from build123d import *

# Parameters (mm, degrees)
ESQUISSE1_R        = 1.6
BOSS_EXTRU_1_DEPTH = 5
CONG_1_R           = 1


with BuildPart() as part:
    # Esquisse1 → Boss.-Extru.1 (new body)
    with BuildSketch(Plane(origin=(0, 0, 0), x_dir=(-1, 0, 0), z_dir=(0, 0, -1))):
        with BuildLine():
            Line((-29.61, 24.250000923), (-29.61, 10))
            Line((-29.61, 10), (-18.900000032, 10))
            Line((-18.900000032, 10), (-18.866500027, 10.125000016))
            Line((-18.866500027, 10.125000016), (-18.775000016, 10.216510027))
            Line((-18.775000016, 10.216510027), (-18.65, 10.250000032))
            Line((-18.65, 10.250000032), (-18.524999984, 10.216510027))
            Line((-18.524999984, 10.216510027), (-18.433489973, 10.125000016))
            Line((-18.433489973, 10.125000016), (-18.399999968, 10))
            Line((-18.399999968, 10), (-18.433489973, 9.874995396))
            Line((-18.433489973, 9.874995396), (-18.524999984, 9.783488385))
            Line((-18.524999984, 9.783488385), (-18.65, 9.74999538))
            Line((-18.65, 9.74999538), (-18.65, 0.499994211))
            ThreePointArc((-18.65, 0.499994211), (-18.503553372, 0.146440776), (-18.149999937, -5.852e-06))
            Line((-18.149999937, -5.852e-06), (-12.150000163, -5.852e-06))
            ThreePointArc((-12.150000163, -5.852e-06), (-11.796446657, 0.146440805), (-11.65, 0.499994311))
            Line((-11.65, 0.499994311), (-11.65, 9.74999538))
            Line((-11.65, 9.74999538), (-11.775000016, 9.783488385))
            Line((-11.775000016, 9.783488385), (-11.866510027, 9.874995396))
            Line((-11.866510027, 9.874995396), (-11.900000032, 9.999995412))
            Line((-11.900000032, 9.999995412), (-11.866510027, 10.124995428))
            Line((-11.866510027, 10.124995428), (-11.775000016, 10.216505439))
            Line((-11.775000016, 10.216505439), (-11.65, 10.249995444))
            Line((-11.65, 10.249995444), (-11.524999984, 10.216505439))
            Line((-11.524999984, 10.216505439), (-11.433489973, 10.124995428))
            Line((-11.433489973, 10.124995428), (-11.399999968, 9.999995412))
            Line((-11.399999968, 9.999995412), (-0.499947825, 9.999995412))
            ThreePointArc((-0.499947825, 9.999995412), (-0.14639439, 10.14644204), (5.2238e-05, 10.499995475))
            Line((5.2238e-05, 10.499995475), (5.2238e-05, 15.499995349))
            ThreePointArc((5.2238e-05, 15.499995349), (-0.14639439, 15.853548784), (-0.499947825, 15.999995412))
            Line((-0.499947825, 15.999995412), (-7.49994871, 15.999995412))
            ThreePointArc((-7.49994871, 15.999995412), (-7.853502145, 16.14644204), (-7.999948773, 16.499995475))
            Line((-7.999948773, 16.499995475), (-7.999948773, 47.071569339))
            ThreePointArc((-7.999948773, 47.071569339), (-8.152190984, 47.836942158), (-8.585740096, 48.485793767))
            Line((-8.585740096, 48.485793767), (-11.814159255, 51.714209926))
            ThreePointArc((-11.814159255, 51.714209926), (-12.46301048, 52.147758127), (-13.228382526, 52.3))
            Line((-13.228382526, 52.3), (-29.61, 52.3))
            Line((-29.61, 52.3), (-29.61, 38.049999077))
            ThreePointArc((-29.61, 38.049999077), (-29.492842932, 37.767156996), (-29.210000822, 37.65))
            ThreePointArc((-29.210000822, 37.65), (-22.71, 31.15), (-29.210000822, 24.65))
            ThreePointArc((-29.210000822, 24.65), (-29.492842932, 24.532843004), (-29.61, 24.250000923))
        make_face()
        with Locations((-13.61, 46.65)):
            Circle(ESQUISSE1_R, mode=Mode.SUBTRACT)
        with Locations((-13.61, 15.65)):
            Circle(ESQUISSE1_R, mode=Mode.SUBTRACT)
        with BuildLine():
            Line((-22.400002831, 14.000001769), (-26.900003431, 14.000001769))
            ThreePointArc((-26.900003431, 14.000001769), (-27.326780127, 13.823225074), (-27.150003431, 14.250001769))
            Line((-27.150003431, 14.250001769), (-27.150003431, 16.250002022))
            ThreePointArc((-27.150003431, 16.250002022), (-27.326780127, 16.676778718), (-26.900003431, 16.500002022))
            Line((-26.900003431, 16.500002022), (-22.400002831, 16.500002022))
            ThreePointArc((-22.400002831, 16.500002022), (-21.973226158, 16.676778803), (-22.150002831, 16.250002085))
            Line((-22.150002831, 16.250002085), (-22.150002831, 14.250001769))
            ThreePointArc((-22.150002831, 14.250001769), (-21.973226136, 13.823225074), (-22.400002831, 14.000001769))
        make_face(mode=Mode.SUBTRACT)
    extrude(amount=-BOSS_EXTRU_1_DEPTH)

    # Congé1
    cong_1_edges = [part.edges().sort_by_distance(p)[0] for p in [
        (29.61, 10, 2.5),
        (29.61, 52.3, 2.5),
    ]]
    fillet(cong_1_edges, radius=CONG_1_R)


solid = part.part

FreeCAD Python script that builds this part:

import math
import FreeCAD as App
import Part
import Sketcher
Q = App.Units.Quantity


def edges_at(feature, points):
    """Names of the edges that pass closest to the given points."""
    edges = feature.Shape.Edges
    near = lambda p: min(range(len(edges)), key=lambda i: edges[i].distToShape(Part.Vertex(*p))[0])
    return sorted({f"Edge{near(p) + 1}" for p in points})

doc = App.newDocument("Part")
body = doc.addObject("PartDesign::Body", "Body")

# Sketch on XY plane
sketch1 = body.newObject("Sketcher::SketchObject", "Sketch")
sketch1.AttachmentSupport = (doc.getObject("XY_Plane"), [""])
sketch1.MapMode = "FlatFace"
sketch1.addGeometry(Part.LineSegment(App.Vector(29.61, 24.25, 0), App.Vector(29.61, 10, 0)), False)
sketch1.addGeometry(Part.LineSegment(App.Vector(29.61, 10, 0), App.Vector(18.9, 10, 0)), False)
sketch1.addGeometry(Part.LineSegment(App.Vector(18.9, 10, 0), App.Vector(18.87, 10.13, 0)), False)
sketch1.addGeometry(Part.LineSegment(App.Vector(18.87, 10.13, 0), App.Vector(18.78, 10.22, 0)), False)
sketch1.addGeometry(Part.LineSegment(App.Vector(18.78, 10.22, 0), App.Vector(18.65, 10.25, 0)), False)
sketch1.addGeometry(Part.LineSegment(App.Vector(18.65, 10.25, 0), App.Vector(18.52, 10.22, 0)), False)
sketch1.addGeometry(Part.LineSegment(App.Vector(18.52, 10.22, 0), App.Vector(18.43, 10.13, 0)), False)
sketch1.addGeometry(Part.LineSegment(App.Vector(18.43, 10.13, 0), App.Vector(18.4, 10, 0)), False)
sketch1.addGeometry(Part.LineSegment(App.Vector(18.4, 10, 0), App.Vector(18.43, 9.87, 0)), False)
sketch1.addGeometry(Part.LineSegment(App.Vector(18.43, 9.87, 0), App.Vector(18.52, 9.78, 0)), False)
sketch1.addGeometry(Part.LineSegment(App.Vector(18.52, 9.78, 0), App.Vector(18.65, 9.75, 0)), False)
sketch1.addGeometry(Part.LineSegment(App.Vector(18.65, 9.75, 0), App.Vector(18.65, 0.5, 0)), False)
sketch1.addGeometry(Part.ArcOfCircle(Part.Circle(App.Vector(18.15, 0.5, 0), App.Vector(0, 0, 1), 0.5), math.radians(-90), math.radians(0)), False)
sketch1.addGeometry(Part.LineSegment(App.Vector(18.15, 0, 0), App.Vector(12.15, 0, 0)), False)
sketch1.addGeometry(Part.ArcOfCircle(Part.Circle(App.Vector(12.15, 0.5, 0), App.Vector(0, 0, 1), 0.5), math.radians(180), math.radians(270)), False)
sketch1.addGeometry(Part.LineSegment(App.Vector(11.65, 0.5, 0), App.Vector(11.65, 9.75, 0)), False)
sketch1.addGeometry(Part.LineSegment(App.Vector(11.65, 9.75, 0), App.Vector(11.78, 9.78, 0)), False)
sketch1.addGeometry(Part.LineSegment(App.Vector(11.78, 9.78, 0), App.Vector(11.87, 9.87, 0)), False)
sketch1.addGeometry(Part.LineSegment(App.Vector(11.87, 9.87, 0), App.Vector(11.9, 10, 0)), False)
sketch1.addGeometry(Part.LineSegment(App.Vector(11.9, 10, 0), App.Vector(11.87, 10.12, 0)), False)
sketch1.addGeometry(Part.LineSegment(App.Vector(11.87, 10.12, 0), App.Vector(11.78, 10.22, 0)), False)
sketch1.addGeometry(Part.LineSegment(App.Vector(11.78, 10.22, 0), App.Vector(11.65, 10.25, 0)), False)
sketch1.addGeometry(Part.LineSegment(App.Vector(11.65, 10.25, 0), App.Vector(11.52, 10.22, 0)), False)
sketch1.addGeometry(Part.LineSegment(App.Vector(11.52, 10.22, 0), App.Vector(11.43, 10.12, 0)), False)
sketch1.addGeometry(Part.LineSegment(App.Vector(11.43, 10.12, 0), App.Vector(11.4, 10, 0)), False)
sketch1.addGeometry(Part.LineSegment(App.Vector(11.4, 10, 0), App.Vector(0.5, 10, 0)), False)
sketch1.addGeometry(Part.ArcOfCircle(Part.Circle(App.Vector(0.5, 10.5, 0), App.Vector(0, 0, 1), 0.5), math.radians(180), math.radians(270)), False)
sketch1.addGeometry(Part.LineSegment(App.Vector(0, 10.5, 0), App.Vector(0, 15.5, 0)), False)
sketch1.addGeometry(Part.ArcOfCircle(Part.Circle(App.Vector(0.5, 15.5, 0), App.Vector(0, 0, 1), 0.5), math.radians(90), math.radians(180)), False)
sketch1.addGeometry(Part.LineSegment(App.Vector(0.5, 16, 0), App.Vector(7.5, 16, 0)), False)
sketch1.addGeometry(Part.ArcOfCircle(Part.Circle(App.Vector(7.5, 16.5, 0), App.Vector(0, 0, 1), 0.5), math.radians(-90), math.radians(0)), False)
sketch1.addGeometry(Part.LineSegment(App.Vector(8, 16.5, 0), App.Vector(8, 47.07, 0)), False)
sketch1.addGeometry(Part.ArcOfCircle(Part.Circle(App.Vector(10, 47.07, 0), App.Vector(0, 0, 1), 2), math.radians(135), math.radians(180)), False)
sketch1.addGeometry(Part.LineSegment(App.Vector(8.59, 48.49, 0), App.Vector(11.81, 51.71, 0)), False)
sketch1.addGeometry(Part.ArcOfCircle(Part.Circle(App.Vector(13.23, 50.3, 0), App.Vector(0, 0, 1), 2), math.radians(90), math.radians(135)), False)
sketch1.addGeometry(Part.LineSegment(App.Vector(13.23, 52.3, 0), App.Vector(29.61, 52.3, 0)), False)
sketch1.addGeometry(Part.LineSegment(App.Vector(29.61, 52.3, 0), App.Vector(29.61, 38.05, 0)), False)
sketch1.addGeometry(Part.ArcOfCircle(Part.Circle(App.Vector(29.21, 38.05, 0), App.Vector(0, 0, 1), 0.4), math.radians(-90), math.radians(0)), False)
sketch1.addGeometry(Part.ArcOfCircle(Part.Circle(App.Vector(29.21, 31.15, 0), App.Vector(0, 0, 1), 6.5), math.radians(90), math.radians(270)), False)
sketch1.addGeometry(Part.ArcOfCircle(Part.Circle(App.Vector(29.21, 24.25, 0), App.Vector(0, 0, 1), 0.4), math.radians(0), math.radians(90)), False)
sketch1.addGeometry(Part.ArcOfCircle(Part.Circle(App.Vector(22.15, 14, 0), App.Vector(0, 0, 1), 0.25), math.radians(90), math.radians(360)), False)
sketch1.addGeometry(Part.LineSegment(App.Vector(22.4, 14, 0), App.Vector(26.9, 14, 0)), False)
sketch1.addGeometry(Part.ArcOfCircle(Part.Circle(App.Vector(27.15, 14, 0), App.Vector(0, 0, 1), 0.25), math.radians(180), math.radians(450)), False)
sketch1.addGeometry(Part.LineSegment(App.Vector(27.15, 14.25, 0), App.Vector(27.15, 16.25, 0)), False)
sketch1.addGeometry(Part.ArcOfCircle(Part.Circle(App.Vector(27.15, 16.5, 0), App.Vector(0, 0, 1), 0.25), math.radians(-90), math.radians(180)), False)
sketch1.addGeometry(Part.LineSegment(App.Vector(26.9, 16.5, 0), App.Vector(22.4, 16.5, 0)), False)
sketch1.addGeometry(Part.ArcOfCircle(Part.Circle(App.Vector(22.15, 16.5, 0), App.Vector(0, 0, 1), 0.25), math.radians(0), math.radians(270)), False)
sketch1.addGeometry(Part.LineSegment(App.Vector(22.15, 16.25, 0), App.Vector(22.15, 14.25, 0)), False)
sketch1.addGeometry(Part.Circle(App.Vector(13.61, 15.65, 0), App.Vector(0, 0, 1), 1.6), False)
sketch1.addGeometry(Part.Circle(App.Vector(13.61, 46.65, 0), App.Vector(0, 0, 1), 1.6), False)
sketch1.addConstraint(Sketcher.Constraint("Coincident", 0, 2, 1, 1))
sketch1.addConstraint(Sketcher.Constraint("Coincident", 1, 2, 2, 1))
sketch1.addConstraint(Sketcher.Constraint("Coincident", 2, 2, 3, 1))
sketch1.addConstraint(Sketcher.Constraint("Coincident", 3, 2, 4, 1))
sketch1.addConstraint(Sketcher.Constraint("Coincident", 4, 2, 5, 1))
sketch1.addConstraint(Sketcher.Constraint("Coincident", 5, 2, 6, 1))
sketch1.addConstraint(Sketcher.Constraint("Coincident", 6, 2, 7, 1))
sketch1.addConstraint(Sketcher.Constraint("Coincident", 7, 2, 8, 1))
sketch1.addConstraint(Sketcher.Constraint("Coincident", 8, 2, 9, 1))
sketch1.addConstraint(Sketcher.Constraint("Coincident", 9, 2, 10, 1))
sketch1.addConstraint(Sketcher.Constraint("Coincident", 10, 2, 11, 1))
sketch1.addConstraint(Sketcher.Constraint("Tangent", 11, 2, 12, 2))
sketch1.addConstraint(Sketcher.Constraint("Tangent", 12, 1, 13, 1))
sketch1.addConstraint(Sketcher.Constraint("Tangent", 13, 2, 14, 2))
sketch1.addConstraint(Sketcher.Constraint("Tangent", 14, 1, 15, 1))
sketch1.addConstraint(Sketcher.Constraint("Coincident", 15, 2, 16, 1))
sketch1.addConstraint(Sketcher.Constraint("Coincident", 16, 2, 17, 1))
sketch1.addConstraint(Sketcher.Constraint("Coincident", 17, 2, 18, 1))
sketch1.addConstraint(Sketcher.Constraint("Coincident", 18, 2, 19, 1))
sketch1.addConstraint(Sketcher.Constraint("Coincident", 19, 2, 20, 1))
sketch1.addConstraint(Sketcher.Constraint("Coincident", 20, 2, 21, 1))
sketch1.addConstraint(Sketcher.Constraint("Coincident", 21, 2, 22, 1))
sketch1.addConstraint(Sketcher.Constraint("Coincident", 22, 2, 23, 1))
sketch1.addConstraint(Sketcher.Constraint("Coincident", 23, 2, 24, 1))
sketch1.addConstraint(Sketcher.Constraint("Coincident", 24, 2, 25, 1))
sketch1.addConstraint(Sketcher.Constraint("Tangent", 25, 2, 26, 2))
sketch1.addConstraint(Sketcher.Constraint("Tangent", 26, 1, 27, 1))
sketch1.addConstraint(Sketcher.Constraint("Tangent", 27, 2, 28, 2))
sketch1.addConstraint(Sketcher.Constraint("Tangent", 28, 1, 29, 1))
sketch1.addConstraint(Sketcher.Constraint("Tangent", 29, 2, 30, 1))
sketch1.addConstraint(Sketcher.Constraint("Tangent", 30, 2, 31, 1))
sketch1.addConstraint(Sketcher.Constraint("Tangent", 31, 2, 32, 2))
sketch1.addConstraint(Sketcher.Constraint("Tangent", 32, 1, 33, 1))
sketch1.addConstraint(Sketcher.Constraint("Tangent", 33, 2, 34, 2))
sketch1.addConstraint(Sketcher.Constraint("Tangent", 34, 1, 35, 1))
sketch1.addConstraint(Sketcher.Constraint("Coincident", 35, 2, 36, 1))
sketch1.addConstraint(Sketcher.Constraint("Tangent", 36, 2, 37, 2))
sketch1.addConstraint(Sketcher.Constraint("Tangent", 37, 1, 38, 1))
sketch1.addConstraint(Sketcher.Constraint("Tangent", 38, 2, 39, 2))
sketch1.addConstraint(Sketcher.Constraint("Tangent", 39, 1, 0, 1))
sketch1.addConstraint(Sketcher.Constraint("Coincident", 40, 2, 41, 1))
sketch1.addConstraint(Sketcher.Constraint("Coincident", 41, 2, 42, 1))
sketch1.addConstraint(Sketcher.Constraint("Coincident", 42, 2, 43, 1))
sketch1.addConstraint(Sketcher.Constraint("Coincident", 43, 2, 44, 1))
sketch1.addConstraint(Sketcher.Constraint("Coincident", 44, 2, 45, 1))
sketch1.addConstraint(Sketcher.Constraint("Coincident", 45, 2, 46, 1))
sketch1.addConstraint(Sketcher.Constraint("Coincident", 46, 2, 47, 1))
sketch1.addConstraint(Sketcher.Constraint("Coincident", 47, 2, 40, 1))
sketch1.addConstraint(Sketcher.Constraint("Vertical", 0))
sketch1.addConstraint(Sketcher.Constraint("Horizontal", 1))
sketch1.addConstraint(Sketcher.Constraint("Vertical", 11))
sketch1.addConstraint(Sketcher.Constraint("Horizontal", 13))
sketch1.addConstraint(Sketcher.Constraint("Vertical", 15))
sketch1.addConstraint(Sketcher.Constraint("Horizontal", 25))
sketch1.addConstraint(Sketcher.Constraint("Vertical", 27))
sketch1.addConstraint(Sketcher.Constraint("Horizontal", 29))
sketch1.addConstraint(Sketcher.Constraint("Vertical", 31))
sketch1.addConstraint(Sketcher.Constraint("Horizontal", 35))
sketch1.addConstraint(Sketcher.Constraint("Vertical", 36))
sketch1.addConstraint(Sketcher.Constraint("Horizontal", 41))
sketch1.addConstraint(Sketcher.Constraint("Vertical", 43))
sketch1.addConstraint(Sketcher.Constraint("Horizontal", 45))
sketch1.addConstraint(Sketcher.Constraint("Vertical", 47))
sketch1.addConstraint(Sketcher.Constraint("Equal", 12, 14))
sketch1.addConstraint(Sketcher.Constraint("Equal", 14, 26))
sketch1.addConstraint(Sketcher.Constraint("Equal", 26, 28))
sketch1.addConstraint(Sketcher.Constraint("Equal", 28, 30))
sketch1.addConstraint(Sketcher.Constraint("Equal", 32, 34))
sketch1.addConstraint(Sketcher.Constraint("Equal", 37, 39))
sketch1.addConstraint(Sketcher.Constraint("Equal", 40, 42))
sketch1.addConstraint(Sketcher.Constraint("Equal", 42, 44))
sketch1.addConstraint(Sketcher.Constraint("Equal", 44, 46))
sketch1.addConstraint(Sketcher.Constraint("Equal", 48, 49))
sketch1.addConstraint(Sketcher.Constraint("Perpendicular", 4, 7))
sketch1.addConstraint(Sketcher.Constraint("Parallel", 7, 18))
sketch1.addConstraint(Sketcher.Constraint("Perpendicular", 5, 19))
sketch1.addConstraint(Sketcher.Constraint("Perpendicular", 6, 20))
sketch1.addConstraint(Sketcher.Constraint("Perpendicular", 18, 21))
sketch1.addConstraint(Sketcher.Constraint("Perpendicular", 19, 22))
sketch1.addConstraint(Sketcher.Constraint("Perpendicular", 20, 23))
sketch1.addConstraint(Sketcher.Constraint("Perpendicular", 21, 24))
sketch1.addConstraint(Sketcher.Constraint("Parallel", 23, 33))
sketch1.addConstraint(Sketcher.Constraint("Horizontal", 40, 3, 42, 3))
sketch1.addConstraint(Sketcher.Constraint("Horizontal", 44, 3, 46, 3))
sketch1.addConstraint(Sketcher.Constraint("Horizontal", 3, 2, 5, 2))
sketch1.addConstraint(Sketcher.Constraint("Horizontal", 2, 2, 6, 2))
sketch1.addConstraint(Sketcher.Constraint("Horizontal", 1, 2, 7, 2))
sketch1.addConstraint(Sketcher.Constraint("Horizontal", 10, 2, 15, 2))
sketch1.addConstraint(Sketcher.Constraint("Horizontal", 9, 2, 16, 2))
sketch1.addConstraint(Sketcher.Constraint("Horizontal", 8, 2, 17, 2))
sketch1.addConstraint(Sketcher.Constraint("Horizontal", 20, 2, 22, 2))
sketch1.addConstraint(Sketcher.Constraint("Horizontal", 19, 2, 23, 2))
sketch1.addConstraint(Sketcher.Constraint("Horizontal", 18, 2, 24, 2))
sketch1.addConstraint(Sketcher.Constraint("Horizontal", 42, 3, 40, 2))
sketch1.addConstraint(Sketcher.Constraint("Horizontal", 46, 3, 44, 2))
sketch1.addConstraint(Sketcher.Constraint("Vertical", 37, 3, 38, 3))
sketch1.addConstraint(Sketcher.Constraint("Vertical", 38, 3, 39, 3))
sketch1.addConstraint(Sketcher.Constraint("Vertical", 42, 3, 44, 3))
sketch1.addConstraint(Sketcher.Constraint("Vertical", 40, 3, 46, 3))
sketch1.addConstraint(Sketcher.Constraint("Vertical", 48, 3, 49, 3))
sketch1.addConstraint(Sketcher.Constraint("Vertical", 6, 2, 8, 2))
sketch1.addConstraint(Sketcher.Constraint("Vertical", 5, 2, 9, 2))
sketch1.addConstraint(Sketcher.Constraint("Vertical", 4, 2, 10, 2))
sketch1.addConstraint(Sketcher.Constraint("Vertical", 17, 2, 19, 2))
sketch1.addConstraint(Sketcher.Constraint("Vertical", 16, 2, 20, 2))
sketch1.addConstraint(Sketcher.Constraint("Vertical", 15, 2, 21, 2))
sketch1.addConstraint(Sketcher.Constraint("Vertical", 44, 3, 42, 2))
sketch1.addConstraint(Sketcher.Constraint("Vertical", 40, 3, 46, 2))
sketch1.addConstraint(Sketcher.Constraint("Equal", 0, 36))
sketch1.addConstraint(Sketcher.Constraint("Equal", 3, 4))
sketch1.addConstraint(Sketcher.Constraint("Equal", 4, 5))
sketch1.addConstraint(Sketcher.Constraint("Equal", 5, 7))
sketch1.addConstraint(Sketcher.Constraint("Equal", 6, 8))
sketch1.addConstraint(Sketcher.Constraint("Equal", 8, 9))
sketch1.addConstraint(Sketcher.Constraint("Equal", 7, 10))
sketch1.addConstraint(Sketcher.Constraint("Equal", 10, 16))
sketch1.addConstraint(Sketcher.Constraint("Equal", 9, 17))
sketch1.addConstraint(Sketcher.Constraint("Equal", 16, 18))
sketch1.addConstraint(Sketcher.Constraint("Equal", 8, 20))
sketch1.addConstraint(Sketcher.Constraint("Diameter", 48, Q("3.2 mm")))
sketch1.addConstraint(Sketcher.Constraint("Radius", 12, Q("0.5 mm")))
sketch1.addConstraint(Sketcher.Constraint("Radius", 37, Q("0.399999 mm")))
sketch1.addConstraint(Sketcher.Constraint("Radius", 38, Q("6.5 mm")))
sketch1.addConstraint(Sketcher.Constraint("DistanceX", 13, 2, 13, 1, Q("6 mm")))
sketch1.addConstraint(Sketcher.Constraint("DistanceX", 29, 1, 29, 2, Q("7.000001 mm")))
sketch1.addConstraint(Sketcher.Constraint("DistanceY", 27, 1, 27, 2, Q("5 mm")))
sketch1.addConstraint(Sketcher.Constraint("DistanceY", 43, 1, 43, 2, Q("2 mm")))
sketch1.addConstraint(Sketcher.Constraint("Radius", 40, Q("0.25 mm")))
sketch1.addConstraint(Sketcher.Constraint("DistanceX", 41, 1, 41, 2, Q("4.500001 mm")))
sketch1.addConstraint(Sketcher.Constraint("DistanceY", -1, 1, 40, 3, Q("14.000002 mm")))
sketch1.addConstraint(Sketcher.Constraint("DistanceY", -1, 1, 0, 2, Q("10 mm")))
sketch1.addConstraint(Sketcher.Constraint("DistanceX", 1, 2, 1, 1, Q("10.71 mm")))
sketch1.addConstraint(Sketcher.Constraint("DistanceY", 0, 2, 0, 1, Q("14.250001 mm")))
sketch1.addConstraint(Sketcher.Constraint("DistanceY", 11, 2, 11, 1, Q("9.250001 mm")))
sketch1.addConstraint(Sketcher.Constraint("DistanceX", -1, 1, 1, 2, Q("18.9 mm")))
sketch1.addConstraint(Sketcher.Constraint("DistanceX", -1, 1, 7, 2, Q("18.4 mm")))
sketch1.addConstraint(Sketcher.Constraint("DistanceX", -1, 1, 18, 2, Q("11.9 mm")))
sketch1.addConstraint(Sketcher.Constraint("DistanceX", -1, 1, 48, 3, Q("13.61 mm")))
sketch1.addConstraint(Sketcher.Constraint("DistanceY", -1, 1, 48, 3, Q("15.65 mm")))
sketch1.addConstraint(Sketcher.Constraint("DistanceY", -1, 1, 49, 3, Q("46.65 mm")))
sketch1.addConstraint(Sketcher.Constraint("DistanceY", -1, 1, 2, 2, Q("10.125 mm")))
sketch1.addConstraint(Sketcher.Constraint("Radius", 32, Q("2.000014 mm")))
sketch1.addConstraint(Sketcher.Constraint("DistanceX", -1, 1, 2, 2, Q("18.8665 mm")))
sketch1.addConstraint(Sketcher.Constraint("DistanceX", 25, 2, 25, 1, Q("10.900052 mm")))
sketch1.addConstraint(Sketcher.Constraint("DistanceX", 35, 1, 35, 2, Q("16.381617 mm")))
sketch1.addConstraint(Sketcher.Constraint("DistanceX", -1, 1, 40, 3, Q("22.150003 mm")))
pad1 = body.newObject("PartDesign::Pad", "Pad")
pad1.Profile = sketch1
pad1.Length = 5
doc.recompute()

fillet = body.newObject("PartDesign::Fillet", "Fillet")
fillet.Base = (pad1, edges_at(pad1, [(29.61, 10, 2.5), (29.61, 52.3, 2.5)]))
fillet.Radius = 1

doc.recompute()
